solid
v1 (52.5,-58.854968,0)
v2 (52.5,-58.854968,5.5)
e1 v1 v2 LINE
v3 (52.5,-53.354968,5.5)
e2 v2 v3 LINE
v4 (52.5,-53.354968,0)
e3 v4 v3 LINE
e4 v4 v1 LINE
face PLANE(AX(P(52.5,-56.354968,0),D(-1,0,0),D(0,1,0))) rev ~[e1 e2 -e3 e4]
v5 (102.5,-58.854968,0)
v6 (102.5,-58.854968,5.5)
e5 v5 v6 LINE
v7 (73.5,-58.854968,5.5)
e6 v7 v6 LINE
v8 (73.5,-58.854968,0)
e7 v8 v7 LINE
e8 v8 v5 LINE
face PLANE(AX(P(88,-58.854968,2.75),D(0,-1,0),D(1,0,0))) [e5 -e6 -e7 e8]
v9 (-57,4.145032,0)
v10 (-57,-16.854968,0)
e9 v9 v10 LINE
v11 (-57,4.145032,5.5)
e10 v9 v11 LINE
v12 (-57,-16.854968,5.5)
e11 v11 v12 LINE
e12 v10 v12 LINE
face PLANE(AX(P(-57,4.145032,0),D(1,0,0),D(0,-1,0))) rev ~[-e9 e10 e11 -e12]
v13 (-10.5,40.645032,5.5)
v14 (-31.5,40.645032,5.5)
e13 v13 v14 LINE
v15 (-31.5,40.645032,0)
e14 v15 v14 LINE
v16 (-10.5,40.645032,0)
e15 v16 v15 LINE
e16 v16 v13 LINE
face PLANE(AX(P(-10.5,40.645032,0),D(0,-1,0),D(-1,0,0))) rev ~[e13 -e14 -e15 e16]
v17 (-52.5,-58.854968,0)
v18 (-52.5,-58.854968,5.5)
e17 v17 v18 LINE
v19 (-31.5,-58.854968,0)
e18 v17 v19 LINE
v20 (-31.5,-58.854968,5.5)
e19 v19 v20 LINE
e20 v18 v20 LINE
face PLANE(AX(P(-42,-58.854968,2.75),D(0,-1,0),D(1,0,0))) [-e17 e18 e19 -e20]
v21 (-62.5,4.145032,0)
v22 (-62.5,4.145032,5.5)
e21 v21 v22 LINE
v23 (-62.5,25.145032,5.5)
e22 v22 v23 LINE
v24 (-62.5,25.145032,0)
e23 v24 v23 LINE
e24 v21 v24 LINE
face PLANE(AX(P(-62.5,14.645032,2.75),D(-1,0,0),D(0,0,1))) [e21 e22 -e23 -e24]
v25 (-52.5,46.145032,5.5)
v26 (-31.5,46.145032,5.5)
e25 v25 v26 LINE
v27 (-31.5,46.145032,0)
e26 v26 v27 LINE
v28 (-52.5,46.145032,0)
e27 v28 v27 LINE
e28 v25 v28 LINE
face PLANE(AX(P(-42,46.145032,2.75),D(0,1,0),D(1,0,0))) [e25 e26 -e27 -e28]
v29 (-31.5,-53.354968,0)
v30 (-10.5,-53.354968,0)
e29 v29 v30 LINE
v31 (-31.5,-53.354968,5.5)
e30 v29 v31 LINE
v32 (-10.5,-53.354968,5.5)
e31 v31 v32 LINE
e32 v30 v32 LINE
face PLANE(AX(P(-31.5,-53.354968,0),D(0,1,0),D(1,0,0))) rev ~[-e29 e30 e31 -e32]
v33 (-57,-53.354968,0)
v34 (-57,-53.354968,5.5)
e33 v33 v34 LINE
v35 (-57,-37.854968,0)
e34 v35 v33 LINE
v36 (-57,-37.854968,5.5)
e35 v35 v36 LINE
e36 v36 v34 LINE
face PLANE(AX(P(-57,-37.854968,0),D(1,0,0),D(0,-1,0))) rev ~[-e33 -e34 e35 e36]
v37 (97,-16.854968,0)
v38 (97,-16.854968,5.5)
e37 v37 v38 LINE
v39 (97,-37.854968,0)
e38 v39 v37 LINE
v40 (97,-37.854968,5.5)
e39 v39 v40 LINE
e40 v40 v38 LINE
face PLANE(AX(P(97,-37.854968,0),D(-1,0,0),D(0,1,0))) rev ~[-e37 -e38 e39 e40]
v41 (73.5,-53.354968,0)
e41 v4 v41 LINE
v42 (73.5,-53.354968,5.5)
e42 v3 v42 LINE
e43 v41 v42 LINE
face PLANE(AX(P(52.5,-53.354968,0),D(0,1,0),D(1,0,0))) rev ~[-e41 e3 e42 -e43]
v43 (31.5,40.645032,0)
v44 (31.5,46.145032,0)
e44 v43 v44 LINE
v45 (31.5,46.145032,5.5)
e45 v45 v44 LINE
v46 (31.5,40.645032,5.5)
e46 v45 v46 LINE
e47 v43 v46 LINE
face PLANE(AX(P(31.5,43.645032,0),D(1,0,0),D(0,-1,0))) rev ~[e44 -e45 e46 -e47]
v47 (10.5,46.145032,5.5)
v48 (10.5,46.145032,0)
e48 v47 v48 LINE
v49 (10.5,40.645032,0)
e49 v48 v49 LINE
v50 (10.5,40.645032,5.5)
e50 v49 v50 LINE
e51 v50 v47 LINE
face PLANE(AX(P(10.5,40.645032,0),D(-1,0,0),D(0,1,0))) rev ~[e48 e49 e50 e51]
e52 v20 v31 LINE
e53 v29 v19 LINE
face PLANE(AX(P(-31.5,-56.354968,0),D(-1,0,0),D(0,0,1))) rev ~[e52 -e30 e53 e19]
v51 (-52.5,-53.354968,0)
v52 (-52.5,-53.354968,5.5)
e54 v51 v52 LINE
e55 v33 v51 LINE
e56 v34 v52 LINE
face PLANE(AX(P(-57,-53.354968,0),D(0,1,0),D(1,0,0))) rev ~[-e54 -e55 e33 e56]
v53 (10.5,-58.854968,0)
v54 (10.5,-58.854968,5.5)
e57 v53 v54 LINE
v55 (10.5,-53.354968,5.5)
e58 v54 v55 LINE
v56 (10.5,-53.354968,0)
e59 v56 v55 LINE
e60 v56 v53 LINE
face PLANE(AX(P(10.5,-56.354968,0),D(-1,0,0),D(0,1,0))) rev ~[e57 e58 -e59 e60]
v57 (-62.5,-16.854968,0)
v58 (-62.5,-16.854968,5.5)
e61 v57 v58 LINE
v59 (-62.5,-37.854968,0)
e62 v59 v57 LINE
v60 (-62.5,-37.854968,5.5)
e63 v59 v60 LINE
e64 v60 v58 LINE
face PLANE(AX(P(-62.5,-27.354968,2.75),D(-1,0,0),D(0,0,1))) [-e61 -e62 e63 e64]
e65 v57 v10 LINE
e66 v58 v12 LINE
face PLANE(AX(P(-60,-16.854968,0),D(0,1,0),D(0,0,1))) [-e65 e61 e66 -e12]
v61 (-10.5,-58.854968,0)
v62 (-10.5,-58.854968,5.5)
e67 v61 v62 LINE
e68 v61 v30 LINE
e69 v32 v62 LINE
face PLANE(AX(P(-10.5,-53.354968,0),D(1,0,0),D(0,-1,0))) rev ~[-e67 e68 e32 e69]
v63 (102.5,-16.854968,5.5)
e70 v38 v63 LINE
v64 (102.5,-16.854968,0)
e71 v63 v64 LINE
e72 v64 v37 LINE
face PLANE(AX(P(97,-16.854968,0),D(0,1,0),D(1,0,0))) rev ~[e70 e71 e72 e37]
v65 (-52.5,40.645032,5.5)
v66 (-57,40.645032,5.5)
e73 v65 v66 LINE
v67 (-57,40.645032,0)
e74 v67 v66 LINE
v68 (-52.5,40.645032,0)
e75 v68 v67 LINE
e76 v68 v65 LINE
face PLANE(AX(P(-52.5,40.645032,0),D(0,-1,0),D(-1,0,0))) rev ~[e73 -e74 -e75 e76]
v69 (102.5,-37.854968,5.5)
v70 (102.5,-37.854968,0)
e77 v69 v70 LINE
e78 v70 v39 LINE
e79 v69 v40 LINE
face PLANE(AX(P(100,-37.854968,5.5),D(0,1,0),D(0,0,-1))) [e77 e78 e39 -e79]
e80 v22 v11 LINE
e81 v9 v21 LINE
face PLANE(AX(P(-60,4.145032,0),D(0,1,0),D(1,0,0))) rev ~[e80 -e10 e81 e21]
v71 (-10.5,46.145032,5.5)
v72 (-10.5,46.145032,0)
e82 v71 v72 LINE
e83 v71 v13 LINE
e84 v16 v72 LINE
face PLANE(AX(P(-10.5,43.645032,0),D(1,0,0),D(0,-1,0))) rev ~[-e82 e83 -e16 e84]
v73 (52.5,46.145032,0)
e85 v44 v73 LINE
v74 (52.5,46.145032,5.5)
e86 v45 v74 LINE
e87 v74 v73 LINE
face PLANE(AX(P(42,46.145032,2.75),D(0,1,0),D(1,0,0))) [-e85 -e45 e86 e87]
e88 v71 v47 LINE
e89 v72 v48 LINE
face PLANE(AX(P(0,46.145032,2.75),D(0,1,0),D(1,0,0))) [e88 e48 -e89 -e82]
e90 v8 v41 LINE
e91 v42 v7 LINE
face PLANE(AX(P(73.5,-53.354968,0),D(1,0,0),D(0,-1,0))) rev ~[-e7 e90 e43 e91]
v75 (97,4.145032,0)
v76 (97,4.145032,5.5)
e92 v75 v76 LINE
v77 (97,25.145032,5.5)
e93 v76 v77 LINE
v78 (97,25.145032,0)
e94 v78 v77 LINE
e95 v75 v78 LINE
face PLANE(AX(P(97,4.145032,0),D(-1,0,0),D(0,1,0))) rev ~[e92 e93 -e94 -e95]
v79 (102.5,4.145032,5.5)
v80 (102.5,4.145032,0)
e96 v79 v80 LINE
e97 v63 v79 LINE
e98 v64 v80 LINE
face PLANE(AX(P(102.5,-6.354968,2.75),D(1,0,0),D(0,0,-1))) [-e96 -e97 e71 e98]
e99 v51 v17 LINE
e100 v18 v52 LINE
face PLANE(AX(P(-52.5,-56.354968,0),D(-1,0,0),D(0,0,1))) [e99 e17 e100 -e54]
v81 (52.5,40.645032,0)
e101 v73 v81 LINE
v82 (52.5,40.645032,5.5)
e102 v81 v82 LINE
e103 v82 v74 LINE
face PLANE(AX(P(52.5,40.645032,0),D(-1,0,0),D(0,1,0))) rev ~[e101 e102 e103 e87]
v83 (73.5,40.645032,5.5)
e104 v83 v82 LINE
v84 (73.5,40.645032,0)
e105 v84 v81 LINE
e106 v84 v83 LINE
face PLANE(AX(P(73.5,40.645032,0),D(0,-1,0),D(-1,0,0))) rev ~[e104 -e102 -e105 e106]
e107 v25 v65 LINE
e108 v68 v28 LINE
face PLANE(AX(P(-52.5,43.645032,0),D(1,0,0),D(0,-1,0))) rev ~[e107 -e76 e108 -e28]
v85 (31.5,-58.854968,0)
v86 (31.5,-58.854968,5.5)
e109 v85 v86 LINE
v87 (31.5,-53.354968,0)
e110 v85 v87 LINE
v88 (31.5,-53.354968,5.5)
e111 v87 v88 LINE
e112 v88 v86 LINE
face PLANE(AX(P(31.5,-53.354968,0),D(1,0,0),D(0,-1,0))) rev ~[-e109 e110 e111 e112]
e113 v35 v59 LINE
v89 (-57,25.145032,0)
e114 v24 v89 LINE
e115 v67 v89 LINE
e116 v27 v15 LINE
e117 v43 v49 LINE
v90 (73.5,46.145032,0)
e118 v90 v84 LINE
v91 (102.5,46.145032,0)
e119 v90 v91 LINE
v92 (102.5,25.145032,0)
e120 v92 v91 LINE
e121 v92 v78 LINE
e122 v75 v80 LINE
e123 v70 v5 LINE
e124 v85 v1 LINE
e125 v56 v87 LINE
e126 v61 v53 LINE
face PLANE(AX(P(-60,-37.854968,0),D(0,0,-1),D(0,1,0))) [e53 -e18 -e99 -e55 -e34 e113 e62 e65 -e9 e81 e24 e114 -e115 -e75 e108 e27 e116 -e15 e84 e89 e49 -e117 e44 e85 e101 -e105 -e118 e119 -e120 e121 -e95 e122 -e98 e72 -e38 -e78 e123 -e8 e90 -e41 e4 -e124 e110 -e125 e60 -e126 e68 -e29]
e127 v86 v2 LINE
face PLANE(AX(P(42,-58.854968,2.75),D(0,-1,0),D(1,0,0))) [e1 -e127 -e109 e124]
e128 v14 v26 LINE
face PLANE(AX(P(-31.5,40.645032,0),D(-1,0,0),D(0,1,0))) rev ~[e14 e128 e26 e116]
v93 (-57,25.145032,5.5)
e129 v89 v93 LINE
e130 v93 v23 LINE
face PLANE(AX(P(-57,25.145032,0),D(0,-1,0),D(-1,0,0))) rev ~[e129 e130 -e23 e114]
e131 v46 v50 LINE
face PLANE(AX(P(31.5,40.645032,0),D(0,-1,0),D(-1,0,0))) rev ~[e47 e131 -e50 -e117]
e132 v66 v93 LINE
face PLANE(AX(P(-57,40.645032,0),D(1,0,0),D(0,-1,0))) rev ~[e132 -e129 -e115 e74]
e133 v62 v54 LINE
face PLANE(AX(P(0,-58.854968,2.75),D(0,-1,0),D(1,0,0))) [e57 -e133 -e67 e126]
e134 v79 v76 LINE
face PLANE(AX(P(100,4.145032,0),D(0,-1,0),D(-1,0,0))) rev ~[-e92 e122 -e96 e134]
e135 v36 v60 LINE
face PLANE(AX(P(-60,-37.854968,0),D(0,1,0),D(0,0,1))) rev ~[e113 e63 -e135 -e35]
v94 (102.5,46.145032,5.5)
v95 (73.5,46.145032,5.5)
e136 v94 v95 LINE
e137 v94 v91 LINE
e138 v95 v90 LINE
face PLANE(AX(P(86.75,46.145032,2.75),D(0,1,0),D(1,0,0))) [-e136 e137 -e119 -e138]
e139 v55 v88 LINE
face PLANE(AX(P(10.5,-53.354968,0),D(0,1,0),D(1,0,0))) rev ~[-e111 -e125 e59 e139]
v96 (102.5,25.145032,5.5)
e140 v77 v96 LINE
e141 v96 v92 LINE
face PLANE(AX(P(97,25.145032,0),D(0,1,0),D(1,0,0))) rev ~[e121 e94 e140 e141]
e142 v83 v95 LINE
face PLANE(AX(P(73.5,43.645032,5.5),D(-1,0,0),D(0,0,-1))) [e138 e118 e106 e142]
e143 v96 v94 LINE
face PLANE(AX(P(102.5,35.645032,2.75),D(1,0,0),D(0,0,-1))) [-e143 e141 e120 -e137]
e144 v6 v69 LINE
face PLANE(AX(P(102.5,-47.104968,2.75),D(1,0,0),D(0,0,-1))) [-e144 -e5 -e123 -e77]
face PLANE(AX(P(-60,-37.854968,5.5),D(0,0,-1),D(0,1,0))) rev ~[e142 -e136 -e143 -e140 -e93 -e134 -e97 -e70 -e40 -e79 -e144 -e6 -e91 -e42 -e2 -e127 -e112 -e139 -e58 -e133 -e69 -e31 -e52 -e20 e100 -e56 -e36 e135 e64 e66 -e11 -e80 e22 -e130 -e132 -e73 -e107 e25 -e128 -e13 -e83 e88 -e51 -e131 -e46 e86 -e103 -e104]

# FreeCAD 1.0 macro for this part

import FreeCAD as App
import Part
import Sketcher


def add_polygon(sketch, points):
    """Adds a closed chain of lines whose ends are joined by coincident constraints."""
    first, n = sketch.GeometryCount, len(points)
    for a, b in zip(points, points[1:] + points[:1]):
        sketch.addGeometry(Part.LineSegment(App.Vector(*a, 0), App.Vector(*b, 0)), False)
    for i in range(n):
        sketch.addConstraint(Sketcher.Constraint("Coincident", first + i, 2, first + (i + 1) % n, 1))

doc = App.newDocument("Part")
body = doc.addObject("PartDesign::Body", "Body")

# Sketch on XY plane
sketch1 = body.newObject("Sketcher::SketchObject", "Sketch")
sketch1.AttachmentSupport = (doc.getObject("XY_Plane"), [""])
sketch1.MapMode = "FlatFace"
add_polygon(sketch1, [(-57, -53.354968), (-52.5, -53.354968), (-52.5, -56.354968), (-31.5, -56.354968), (-31.5, -53.354968), (-10.5, -53.354968), (-10.5, -56.354968), (10.5, -56.354968), (10.5, -53.354968), (31.5, -53.354968), (31.5, -56.354968), (52.5, -56.354968), (52.5, -53.354968), (73.5, -53.354968), (73.5, -56.354968), (100, -56.354968), (100, -37.854968), (97, -37.854968), (97, -16.854968), (100, -16.854968), (100, 4.145032), (97, 4.145032), (97, 25.145032), (100, 25.145032), (100, 43.645032), (73.5, 43.645032), (73.5, 40.645032), (52.5, 40.645032), (52.5, 43.645032), (31.5, 43.645032), (31.5, 40.645032), (10.5, 40.645032), (10.5, 43.645032), (-10.5, 43.645032), (-10.5, 40.645032), (-31.5, 40.645032), (-31.5, 43.645032), (-52.5, 43.645032), (-52.5, 40.645032), (-57, 40.645032), (-57, 25.145032), (-60, 25.145032), (-60, 4.145032), (-57, 4.145032), (-57, -16.854968), (-60, -16.854968), (-60, -37.854968), (-57, -37.854968)])  # lines 0-47
sketch1.addConstraint([
    Sketcher.Constraint("Horizontal", 0),
    Sketcher.Constraint("Vertical", 1),
    Sketcher.Constraint("Horizontal", 2),
    Sketcher.Constraint("Vertical", 3),
    Sketcher.Constraint("Horizontal", 4),
    Sketcher.Constraint("Vertical", 5),
    Sketcher.Constraint("Horizontal", 6),
    Sketcher.Constraint("Vertical", 7),
    Sketcher.Constraint("Horizontal", 8),
    Sketcher.Constraint("Vertical", 9),
    Sketcher.Constraint("Horizontal", 10),
    Sketcher.Constraint("Vertical", 11),
    Sketcher.Constraint("Horizontal", 12),
    Sketcher.Constraint("Vertical", 13),
    Sketcher.Constraint("Horizontal", 14),
    Sketcher.Constraint("Vertical", 15),
    Sketcher.Constraint("Horizontal", 16),
    Sketcher.Constraint("Vertical", 17),
    Sketcher.Constraint("Horizontal", 18),
    Sketcher.Constraint("Vertical", 19),
    Sketcher.Constraint("Horizontal", 20),
    Sketcher.Constraint("Vertical", 21),
    Sketcher.Constraint("Horizontal", 22),
    Sketcher.Constraint("Vertical", 23),
    Sketcher.Constraint("Horizontal", 24),
    Sketcher.Constraint("Vertical", 25),
    Sketcher.Constraint("Horizontal", 26),
    Sketcher.Constraint("Vertical", 27),
    Sketcher.Constraint("Horizontal", 28),
    Sketcher.Constraint("Vertical", 29),
    Sketcher.Constraint("Horizontal", 30),
    Sketcher.Constraint("Vertical", 31),
    Sketcher.Constraint("Horizontal", 32),
    Sketcher.Constraint("Vertical", 33),
    Sketcher.Constraint("Horizontal", 34),
    Sketcher.Constraint("Vertical", 35),
    Sketcher.Constraint("Horizontal", 36),
    Sketcher.Constraint("Vertical", 37),
    Sketcher.Constraint("Horizontal", 38),
    Sketcher.Constraint("Vertical", 39),
    Sketcher.Constraint("Horizontal", 40),
    Sketcher.Constraint("Vertical", 41),
    Sketcher.Constraint("Horizontal", 42),
    Sketcher.Constraint("Vertical", 43),
    Sketcher.Constraint("Horizontal", 44),
    Sketcher.Constraint("Vertical", 45),
    Sketcher.Constraint("Horizontal", 46),
    Sketcher.Constraint("Vertical", 47),
    Sketcher.Constraint("Symmetric", 4, 2, 7, 2, -2),
    Sketcher.Constraint("Symmetric", 2, 2, 9, 2, -2),
    Sketcher.Constraint("Symmetric", 0, 2, 11, 2, -2),
    Sketcher.Constraint("Symmetric", 30, 2, 33, 2, -2),
    Sketcher.Constraint("Symmetric", 28, 2, 35, 2, -2),
    Sketcher.Constraint("Symmetric", 26, 2, 37, 2, -2),
    Sketcher.Constraint("Horizontal", 0, 2, 3, 2),
    Sketcher.Constraint("Horizontal", 2, 2, 5, 2),
    Sketcher.Constraint("Horizontal", 10, 2, 13, 2),
    Sketcher.Constraint("Horizontal", 24, 2, 27, 2),
    Sketcher.Constraint("Horizontal", 26, 2, 29, 2),
    Sketcher.Constraint("Horizontal", 28, 2, 31, 2),
    Sketcher.Constraint("Horizontal", 22, 2, 39, 2),
    Sketcher.Constraint("Horizontal", 20, 2, 41, 2),
    Sketcher.Constraint("Horizontal", 18, 2, 43, 2),
    Sketcher.Constraint("Horizontal", 16, 2, 45, 2),
    Sketcher.Constraint("Vertical", 15, 2, 18, 2),
    Sketcher.Constraint("Vertical", 17, 2, 20, 2),
    Sketcher.Constraint("Vertical", 19, 2, 22, 2),
    Sketcher.Constraint("Vertical", 13, 2, 24, 2),
    Sketcher.Constraint("Vertical", 11, 2, 26, 2),
    Sketcher.Constraint("Vertical", 9, 2, 28, 2),
    Sketcher.Constraint("Vertical", 7, 2, 30, 2),
    Sketcher.Constraint("Vertical", 39, 2, 42, 2),
    Sketcher.Constraint("Vertical", 41, 2, 44, 2),
    Sketcher.Constraint("Vertical", 43, 2, 46, 2),
    Sketcher.Constraint("Equal", 2, 4),
    Sketcher.Constraint("Equal", 4, 6),
    Sketcher.Constraint("Equal", 10, 12),
    Sketcher.Constraint("Equal", 22, 40),
    Sketcher.Constraint("Equal", 46, 1),
    Sketcher.Constraint("Equal", 36, 17),
    Sketcher.Constraint("Equal", 17, 19),
    Sketcher.Constraint("Equal", 19, 21),
    Sketcher.Constraint("Equal", 15, 23),
    Sketcher.Constraint("Equal", 13, 25),
    Sketcher.Constraint("DistanceX", 2, 1, 2, 2, 21.0),
    Sketcher.Constraint("DistanceX", 16, 2, 16, 1, 3.0),
    Sketcher.Constraint("DistanceX", 0, 1, 0, 2, 4.5),
    Sketcher.Constraint("DistanceX", 14, 1, 14, 2, 26.5),
    Sketcher.Constraint("DistanceY", 15, 1, 15, 2, 18.5),
    Sketcher.Constraint("DistanceY", 0, 2, -1, 1, 53.354968),
])
pad1 = body.newObject("PartDesign::Pad", "Pad")
pad1.Profile = sketch1
pad1.Length = 5.5

# Sketch on XZ plane
sketch2 = body.newObject("Sketcher::SketchObject", "Sketch001")
sketch2.AttachmentSupport = (doc.getObject("XZ_Plane"), [""])
sketch2.MapMode = "FlatFace"
sketch2.AttachmentOffset = App.Placement(App.Vector(0, 0, -43.645032), App.Rotation())
add_polygon(sketch2, [(73.5, 0), (73.5, 5.5), (100, 5.5), (100, 0)])  # lines 0-3
add_polygon(sketch2, [(31.5, 0), (31.5, 5.5), (52.5, 5.5), (52.5, 0)])  # lines 4-7
add_polygon(sketch2, [(-10.5, 0), (-10.5, 5.5), (10.5, 5.5), (10.5, 0)])  # lines 8-11
add_polygon(sketch2, [(-52.5, 0), (-52.5, 5.5), (-31.5, 5.5), (-31.5, 0)])  # lines 12-15
sketch2.addConstraint([
    Sketcher.Constraint("Vertical", 0),
    Sketcher.Constraint("Horizontal", 1),
    Sketcher.Constraint("Vertical", 2),
    Sketcher.Constraint("Horizontal", 3),
    Sketcher.Constraint("Vertical", 4),
    Sketcher.Constraint("Horizontal", 5),
    Sketcher.Constraint("Vertical", 6),
    Sketcher.Constraint("Horizontal", 7),
    Sketcher.Constraint("Vertical", 8),
    Sketcher.Constraint("Horizontal", 9),
    Sketcher.Constraint("Vertical", 10),
    Sketcher.Constraint("Horizontal", 11),
    Sketcher.Constraint("Vertical", 12),
    Sketcher.Constraint("Horizontal", 13),
    Sketcher.Constraint("Vertical", 14),
    Sketcher.Constraint("Horizontal", 15),
    Sketcher.Constraint("Symmetric", 10, 2, 11, 2, -1, 1),
    Sketcher.Constraint("Symmetric", 7, 2, 14, 2, -1, 1),
    Sketcher.Constraint("Symmetric", 5, 2, 12, 2, -2),
    Sketcher.Constraint("PointOnObject", 2, 2, -1),
    Sketcher.Constraint("PointOnObject", 6, 2, -1),
    Sketcher.Constraint("Horizontal", 1, 2, 4, 2),
    Sketcher.Constraint("Horizontal", 5, 2, 8, 2),
    Sketcher.Constraint("Equal", 7, 9),
    Sketcher.Constraint("DistanceX", 5, 1, 5, 2, 21.0),
    Sketcher.Constraint("DistanceX", 1, 1, 1, 2, 26.5),
    Sketcher.Constraint("DistanceY", 0, 1, 0, 2, 5.5),
    Sketcher.Constraint("DistanceX", -1, 1, 1, 2, 100.0),
    Sketcher.Constraint("DistanceX", 4, 2, 0, 2, 42.0),
])
pad2 = body.newObject("PartDesign::Pad", "Pad001")
pad2.Profile = sketch2
pad2.Length = 2.5
pad2.Reversed = True

# Sketch on YZ plane
sketch3 = body.newObject("Sketcher::SketchObject", "Sketch002")
sketch3.AttachmentSupport = (doc.getObject("YZ_Plane"), [""])
sketch3.MapMode = "FlatFace"
sketch3.AttachmentOffset = App.Placement(App.Vector(0, 0, 100), App.Rotation())
add_polygon(sketch3, [(-37.854968, 5.5), (-56.354968, 5.5), (-56.354968, 0), (-37.854968, 0)])  # lines 0-3
add_polygon(sketch3, [(4.145032, 5.5), (-16.854968, 5.5), (-16.854968, 0), (4.145032, 0)])  # lines 4-7
add_polygon(sketch3, [(46.145032, 5.5), (25.145032, 5.5), (25.145032, 0), (46.145032, 0)])  # lines 8-11
sketch3.addConstraint([
    Sketcher.Constraint("Horizontal", 0),
    Sketcher.Constraint("Vertical", 1),
    Sketcher.Constraint("Horizontal", 2),
    Sketcher.Constraint("Vertical", 3),
    Sketcher.Constraint("Horizontal", 4),
    Sketcher.Constraint("Vertical", 5),
    Sketcher.Constraint("Horizontal", 6),
    Sketcher.Constraint("Vertical", 7),
    Sketcher.Constraint("Horizontal", 8),
    Sketcher.Constraint("Vertical", 9),
    Sketcher.Constraint("Horizontal", 10),
    Sketcher.Constraint("Vertical", 11),
    Sketcher.Constraint("PointOnObject", 1, 2, -1),
    Sketcher.Constraint("PointOnObject", 5, 2, -1),
    Sketcher.Constraint("PointOnObject", 9, 2, -1),
    Sketcher.Constraint("Horizontal", 3, 2, 4, 2),
    Sketcher.Constraint("Horizontal", 7, 2, 8, 2),
    Sketcher.Constraint("Equal", 6, 8),
    Sketcher.Constraint("DistanceX", 4, 2, 4, 1, 21.0),
    Sketcher.Constraint("DistanceX", 0, 2, 0, 1, 18.5),
    Sketcher.Constraint("DistanceY", 1, 2, 1, 1, 5.5),
    Sketcher.Constraint("DistanceX", 3, 2, 4, 2, 21.0),
    Sketcher.Constraint("DistanceX", 7, 2, 8, 2, 21.0),
    Sketcher.Constraint("DistanceX", 0, 2, -1, 1, 56.354968),
])
pad3 = body.newObject("PartDesign::Pad", "Pad002")
pad3.Profile = sketch3
pad3.Length = 2.5

# Sketch on XZ plane
sketch4 = body.newObject("Sketcher::SketchObject", "Sketch003")
sketch4.AttachmentSupport = (doc.getObject("XZ_Plane"), [""])
sketch4.MapMode = "FlatFace"
sketch4.AttachmentOffset = App.Placement(App.Vector(0, 0, 56.354968), App.Rotation())
add_polygon(sketch4, [(-52.5, 5.5), (-52.5, 0), (-31.5, 0), (-31.5, 5.5)])  # lines 0-3
add_polygon(sketch4, [(-10.5, 5.5), (-10.5, 0), (10.5, 0), (10.5, 5.5)])  # lines 4-7
add_polygon(sketch4, [(31.5, 5.5), (31.5, 0), (52.5, 0), (52.5, 5.5)])  # lines 8-11
add_polygon(sketch4, [(73.5, 5.5), (73.5, 0), (102.5, 0), (102.5, 5.5)])  # lines 12-15
sketch4.addConstraint([
    Sketcher.Constraint("Vertical", 0),
    Sketcher.Constraint("Horizontal", 1),
    Sketcher.Constraint("Vertical", 2),
    Sketcher.Constraint("Horizontal", 3),
    Sketcher.Constraint("Vertical", 4),
    Sketcher.Constraint("Horizontal", 5),
    Sketcher.Constraint("Vertical", 6),
    Sketcher.Constraint("Horizontal", 7),
    Sketcher.Constraint("Vertical", 8),
    Sketcher.Constraint("Horizontal", 9),
    Sketcher.Constraint("Vertical", 10),
    Sketcher.Constraint("Horizontal", 11),
    Sketcher.Constraint("Vertical", 12),
    Sketcher.Constraint("Horizontal", 13),
    Sketcher.Constraint("Vertical", 14),
    Sketcher.Constraint("Horizontal", 15),
    Sketcher.Constraint("Symmetric", 4, 2, 5, 2, -1, 1),
    Sketcher.Constraint("Symmetric", 1, 2, 8, 2, -1, 1),
    Sketcher.Constraint("Symmetric", 0, 2, 9, 2, -2),
    Sketcher.Constraint("PointOnObject", 12, 2, -1),
    Sketcher.Constraint("Horizontal", 3, 2, 6, 2),
    Sketcher.Constraint("Horizontal", 7, 2, 10, 2),
    Sketcher.Constraint("Horizontal", 11, 2, 14, 2),
    Sketcher.Constraint("Equal", 3, 5),
    Sketcher.Constraint("DistanceX", 1, 1, 1, 2, 21.0),
    Sketcher.Constraint("DistanceX", 13, 1, 13, 2, 29.0),
    Sketcher.Constraint("DistanceY", 0, 2, 0, 1, 5.5),
    Sketcher.Constraint("DistanceX", 1, 2, 4, 2, 21.0),
    Sketcher.Constraint("DistanceX", 9, 2, 12, 2, 21.0),
])
pad4 = body.newObject("PartDesign::Pad", "Pad003")
pad4.Profile = sketch4
pad4.Length = 2.5

# Sketch on YZ plane
sketch5 = body.newObject("Sketcher::SketchObject", "Sketch004")
sketch5.AttachmentSupport = (doc.getObject("YZ_Plane"), [""])
sketch5.MapMode = "FlatFace"
sketch5.AttachmentOffset = App.Placement(App.Vector(0, 0, -60), App.Rotation())
add_polygon(sketch5, [(-16.854968, 0), (-37.854968, 0), (-37.854968, 5.5), (-16.854968, 5.5)])  # lines 0-3
add_polygon(sketch5, [(25.145032, 0), (4.145032, 0), (4.145032, 5.5), (25.145032, 5.5)])  # lines 4-7
sketch5.addConstraint([
    Sketcher.Constraint("Horizontal", 0),
    Sketcher.Constraint("Vertical", 1),
    Sketcher.Constraint("Horizontal", 2),
    Sketcher.Constraint("Vertical", 3),
    Sketcher.Constraint("Horizontal", 4),
    Sketcher.Constraint("Vertical", 5),
    Sketcher.Constraint("Horizontal", 6),
    Sketcher.Constraint("Vertical", 7),
    Sketcher.Constraint("PointOnObject", 0, 2, -1),
    Sketcher.Constraint("PointOnObject", 4, 2, -1),
    Sketcher.Constraint("Horizontal", 2, 2, 5, 2),
    Sketcher.Constraint("Equal", 2, 4),
    Sketcher.Constraint("DistanceX", 0, 2, 0, 1, 21.0),
    Sketcher.Constraint("DistanceY", 1, 1, 1, 2, 5.5),
    Sketcher.Constraint("DistanceX", 3, 2, 4, 2, 21.0),
    Sketcher.Constraint("DistanceX", 0, 2, -1, 1, 37.854968),
])
pad5 = body.newObject("PartDesign::Pad", "Pad004")
pad5.Profile = sketch5
pad5.Length = 2.5
pad5.Reversed = True

doc.recompute()
